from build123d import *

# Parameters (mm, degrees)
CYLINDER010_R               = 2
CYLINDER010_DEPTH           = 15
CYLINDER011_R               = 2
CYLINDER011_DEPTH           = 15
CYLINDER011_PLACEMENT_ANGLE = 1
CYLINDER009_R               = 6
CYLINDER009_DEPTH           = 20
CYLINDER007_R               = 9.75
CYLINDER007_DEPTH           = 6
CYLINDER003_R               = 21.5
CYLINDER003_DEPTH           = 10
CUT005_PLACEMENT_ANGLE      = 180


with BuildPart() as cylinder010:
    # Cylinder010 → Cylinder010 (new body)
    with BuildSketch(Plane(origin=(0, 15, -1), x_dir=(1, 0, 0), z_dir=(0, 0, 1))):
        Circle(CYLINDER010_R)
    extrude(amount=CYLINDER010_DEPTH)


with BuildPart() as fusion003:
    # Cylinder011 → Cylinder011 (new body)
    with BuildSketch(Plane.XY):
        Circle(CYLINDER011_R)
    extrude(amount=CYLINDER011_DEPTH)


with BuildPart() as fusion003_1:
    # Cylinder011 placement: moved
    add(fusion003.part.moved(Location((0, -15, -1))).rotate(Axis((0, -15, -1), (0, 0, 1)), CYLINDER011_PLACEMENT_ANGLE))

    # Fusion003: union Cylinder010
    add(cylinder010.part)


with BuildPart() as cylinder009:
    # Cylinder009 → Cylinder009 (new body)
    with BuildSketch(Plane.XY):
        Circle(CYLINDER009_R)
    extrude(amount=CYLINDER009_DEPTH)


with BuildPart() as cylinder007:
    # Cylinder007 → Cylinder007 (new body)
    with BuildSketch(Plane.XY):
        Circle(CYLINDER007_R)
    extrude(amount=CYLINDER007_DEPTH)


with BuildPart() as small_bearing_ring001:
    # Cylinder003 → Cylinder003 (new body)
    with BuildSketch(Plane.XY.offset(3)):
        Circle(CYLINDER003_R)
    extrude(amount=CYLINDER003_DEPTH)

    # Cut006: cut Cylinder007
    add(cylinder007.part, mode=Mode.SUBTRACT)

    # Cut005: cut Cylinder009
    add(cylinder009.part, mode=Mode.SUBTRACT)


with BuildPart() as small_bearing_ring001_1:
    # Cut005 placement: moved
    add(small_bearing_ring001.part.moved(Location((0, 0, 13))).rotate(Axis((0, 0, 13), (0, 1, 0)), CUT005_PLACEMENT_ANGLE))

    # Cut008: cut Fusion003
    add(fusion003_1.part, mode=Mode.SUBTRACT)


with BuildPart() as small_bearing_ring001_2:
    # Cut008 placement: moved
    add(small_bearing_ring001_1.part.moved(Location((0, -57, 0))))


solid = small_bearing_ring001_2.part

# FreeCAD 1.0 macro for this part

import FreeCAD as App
import Part
import Sketcher
from FreeCAD import Vector

doc = App.newDocument("Part")
body = doc.addObject("PartDesign::Body", "Body")

sketch1 = doc.addObject("Sketcher::SketchObject", "Sketch")
body.addObject(sketch1)
sketch1.AttachmentSupport = (doc.XY_Plane, [""])
sketch1.MapMode = "FlatFace"
sketch1.AttachmentOffset = App.Placement(Vector(0, 0, -1), App.Rotation())
sketch1.addGeometry(Part.Circle(Vector(0, 15, 0), Vector(0, 0, 1), 2), False)
sketch1.addConstraint(Sketcher.Constraint("PointOnObject", 0, 3, -2))
sketch1.addConstraint(Sketcher.Constraint("Diameter", 0, 4.0))
sketch1.addConstraint(Sketcher.Constraint("DistanceY", -1, 1, 0, 3, 15.0))
pad1 = doc.addObject("PartDesign::Pad", "Pad")
body.addObject(pad1)
pad1.Profile = sketch1
pad1.Length = 15
body2 = doc.addObject("PartDesign::Body", "Body001")

sketch2 = doc.addObject("Sketcher::SketchObject", "Sketch001")
body2.addObject(sketch2)
sketch2.AttachmentSupport = (doc.getObject("XY_Plane001"), [""])
sketch2.MapMode = "FlatFace"
sketch2.addGeometry(Part.Circle(Vector(0, 0, 0), Vector(0, 0, 1), 2), False)
sketch2.addConstraint(Sketcher.Constraint("Coincident", 0, 3, -1, 1))
sketch2.addConstraint(Sketcher.Constraint("Diameter", 0, 4.0))
pad2 = doc.addObject("PartDesign::Pad", "Pad001")
body2.addObject(pad2)
pad2.Profile = sketch2
pad2.Length = 15
body3 = doc.addObject("PartDesign::Body", "Body002")
body3.AllowCompound = True
doc.recompute()

body2.Placement = App.Placement(Vector(0, -15, -1), App.Rotation(Vector(0, 0, 1), 1))
boolean = doc.addObject("PartDesign::Boolean", "Boolean")
body3.addObject(boolean)
boolean.Type = "Fuse"
boolean.addObjects([body2])
doc.recompute()

boolean2 = doc.addObject("PartDesign::Boolean", "Boolean001")
body3.addObject(boolean2)
boolean2.Type = "Fuse"
boolean2.addObjects([body])
body4 = doc.addObject("PartDesign::Body", "Body003")

sketch3 = doc.addObject("Sketcher::SketchObject", "Sketch002")
body4.addObject(sketch3)
sketch3.AttachmentSupport = (doc.getObject("XY_Plane003"), [""])
sketch3.MapMode = "FlatFace"
sketch3.addGeometry(Part.Circle(Vector(0, 0, 0), Vector(0, 0, 1), 6), False)
sketch3.addConstraint(Sketcher.Constraint("Coincident", 0, 3, -1, 1))
sketch3.addConstraint(Sketcher.Constraint("Diameter", 0, 12.0))
pad3 = doc.addObject("PartDesign::Pad", "Pad002")
body4.addObject(pad3)
pad3.Profile = sketch3
pad3.Length = 20
body5 = doc.addObject("PartDesign::Body", "Body004")

sketch4 = doc.addObject("Sketcher::SketchObject", "Sketch003")
body5.addObject(sketch4)
sketch4.AttachmentSupport = (doc.getObject("XY_Plane004"), [""])
sketch4.MapMode = "FlatFace"
sketch4.addGeometry(Part.Circle(Vector(0, 0, 0), Vector(0, 0, 1), 9.75), False)
sketch4.addConstraint(Sketcher.Constraint("Coincident", 0, 3, -1, 1))
sketch4.addConstraint(Sketcher.Constraint("Diameter", 0, 19.5))
pad4 = doc.addObject("PartDesign::Pad", "Pad003")
body5.addObject(pad4)
pad4.Profile = sketch4
pad4.Length = 6
body6 = doc.addObject("PartDesign::Body", "Body005")

sketch5 = doc.addObject("Sketcher::SketchObject", "Sketch004")
body6.addObject(sketch5)
sketch5.AttachmentSupport = (doc.getObject("XY_Plane005"), [""])
sketch5.MapMode = "FlatFace"
sketch5.AttachmentOffset = App.Placement(Vector(0, 0, 3), App.Rotation())
sketch5.addGeometry(Part.Circle(Vector(0, 0, 0), Vector(0, 0, 1), 21.5), False)
sketch5.addConstraint(Sketcher.Constraint("Coincident", 0, 3, -1, 1))
sketch5.addConstraint(Sketcher.Constraint("Diameter", 0, 43.0))
pad5 = doc.addObject("PartDesign::Pad", "Pad004")
body6.addObject(pad5)
pad5.Profile = sketch5
pad5.Length = 10
doc.recompute()

boolean3 = doc.addObject("PartDesign::Boolean", "Boolean002")
body6.addObject(boolean3)
boolean3.Type = "Cut"
boolean3.addObjects([body5])
doc.recompute()

boolean4 = doc.addObject("PartDesign::Boolean", "Boolean003")
body6.addObject(boolean4)
boolean4.Type = "Cut"
boolean4.addObjects([body4])
body7 = doc.addObject("PartDesign::Body", "Body006")
doc.recompute()

body6.Placement = App.Placement(Vector(0, 0, 13), App.Rotation(Vector(0, 1, 0), 180))
boolean5 = doc.addObject("PartDesign::Boolean", "Boolean004")
body7.addObject(boolean5)
boolean5.Type = "Fuse"
boolean5.addObjects([body6])
doc.recompute()

boolean6 = doc.addObject("PartDesign::Boolean", "Boolean005")
body7.addObject(boolean6)
boolean6.Type = "Cut"
boolean6.addObjects([body3])
body8 = doc.addObject("PartDesign::Body", "Body007")
doc.recompute()

body7.Placement = App.Placement(Vector(0, -57, 0), App.Rotation(Vector(0, 0, 1), 0))
boolean7 = doc.addObject("PartDesign::Boolean", "Boolean006")
body8.addObject(boolean7)
boolean7.Type = "Fuse"
boolean7.addObjects([body7])

doc.recompute()
